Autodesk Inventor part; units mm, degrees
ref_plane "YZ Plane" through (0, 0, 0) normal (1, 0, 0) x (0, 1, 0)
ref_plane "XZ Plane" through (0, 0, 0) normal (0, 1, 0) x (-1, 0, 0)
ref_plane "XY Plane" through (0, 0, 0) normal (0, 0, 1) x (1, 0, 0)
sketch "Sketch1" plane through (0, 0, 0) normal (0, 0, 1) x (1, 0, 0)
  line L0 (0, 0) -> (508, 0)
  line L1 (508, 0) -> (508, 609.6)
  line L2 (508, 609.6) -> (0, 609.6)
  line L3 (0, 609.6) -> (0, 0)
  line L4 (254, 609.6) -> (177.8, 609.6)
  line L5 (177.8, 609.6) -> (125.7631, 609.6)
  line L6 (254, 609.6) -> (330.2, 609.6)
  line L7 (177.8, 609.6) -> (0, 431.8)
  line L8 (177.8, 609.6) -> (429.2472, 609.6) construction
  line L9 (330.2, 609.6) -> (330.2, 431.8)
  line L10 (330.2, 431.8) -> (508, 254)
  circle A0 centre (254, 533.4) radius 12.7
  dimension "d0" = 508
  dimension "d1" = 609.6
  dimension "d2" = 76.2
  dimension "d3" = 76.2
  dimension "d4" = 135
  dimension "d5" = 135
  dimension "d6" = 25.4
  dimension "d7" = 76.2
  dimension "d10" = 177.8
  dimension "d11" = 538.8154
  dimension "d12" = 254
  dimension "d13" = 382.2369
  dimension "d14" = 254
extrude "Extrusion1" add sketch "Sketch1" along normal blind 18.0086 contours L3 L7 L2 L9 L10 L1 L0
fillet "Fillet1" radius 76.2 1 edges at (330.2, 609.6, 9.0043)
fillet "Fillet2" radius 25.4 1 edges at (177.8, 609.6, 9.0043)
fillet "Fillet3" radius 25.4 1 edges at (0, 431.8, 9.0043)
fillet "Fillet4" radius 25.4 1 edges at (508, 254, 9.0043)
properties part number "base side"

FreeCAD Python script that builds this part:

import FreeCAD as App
import Part
import Sketcher
Q = App.Units.Quantity


def edges_at(feature, points):
    """Names of the edges that pass closest to the given points."""
    edges = feature.Shape.Edges
    near = lambda p: min(range(len(edges)), key=lambda i: edges[i].distToShape(Part.Vertex(*p))[0])
    return sorted({f"Edge{near(p) + 1}" for p in points})

doc = App.newDocument("Part")
body = doc.addObject("PartDesign::Body", "Body")

# Sketch on XY plane
sketch1 = body.newObject("Sketcher::SketchObject", "Sketch")
sketch1.AttachmentSupport = (doc.getObject("XY_Plane"), [""])
sketch1.MapMode = "FlatFace"
sketch1.addGeometry([
    Part.LineSegment(App.Vector(0, 431.8, 0), App.Vector(0, 0, 0)),  # 0
    Part.LineSegment(App.Vector(0, 0, 0), App.Vector(508, 0, 0)),  # 1
    Part.LineSegment(App.Vector(508, 0, 0), App.Vector(508, 254, 0)),  # 2
    Part.LineSegment(App.Vector(508, 254, 0), App.Vector(330.2, 431.8, 0)),  # 3
    Part.LineSegment(App.Vector(330.2, 431.8, 0), App.Vector(330.2, 609.6, 0)),  # 4
    Part.LineSegment(App.Vector(330.2, 609.6, 0), App.Vector(177.8, 609.6, 0)),  # 5
    Part.LineSegment(App.Vector(177.8, 609.6, 0), App.Vector(0, 431.8, 0)),  # 6
    Part.Circle(App.Vector(254, 533.4, 0), App.Vector(0, 0, 1), 12.7),  # 7
], False)
sketch1.addConstraint([
    Sketcher.Constraint("Coincident", 0, 2, 1, 1),
    Sketcher.Constraint("Coincident", 1, 2, 2, 1),
    Sketcher.Constraint("Coincident", 2, 2, 3, 1),
    Sketcher.Constraint("Coincident", 3, 2, 4, 1),
    Sketcher.Constraint("Coincident", 4, 2, 5, 1),
    Sketcher.Constraint("Coincident", 5, 2, 6, 1),
    Sketcher.Constraint("Coincident", 6, 2, 0, 1),
    Sketcher.Constraint("Vertical", 0),
    Sketcher.Constraint("Horizontal", 1),
    Sketcher.Constraint("Vertical", 2),
    Sketcher.Constraint("Vertical", 4),
    Sketcher.Constraint("Horizontal", 5),
    Sketcher.Constraint("Coincident", 0, 2, -1, 1),
    Sketcher.Constraint("Perpendicular", 3, 6),
    Sketcher.Constraint("Horizontal", 3, 2, 6, 2),
    Sketcher.Constraint("Equal", 3, 6),
    Sketcher.Constraint("Diameter", 7, Q("1 in")),
    Sketcher.Constraint("DistanceX", 1, 1, 1, 2, Q("20 in")),
    Sketcher.Constraint("DistanceY", 2, 1, 2, 2, Q("10 in")),
    Sketcher.Constraint("DistanceY", 4, 1, 4, 2, Q("7 in")),
    Sketcher.Constraint("DistanceX", -1, 1, 7, 3, Q("10 in")),
    Sketcher.Constraint("DistanceY", -1, 1, 4, 2, Q("24 in")),
    Sketcher.Constraint("DistanceY", 7, 3, 4, 2, Q("3 in")),
])
pad1 = body.newObject("PartDesign::Pad", "Pad")
pad1.Profile = sketch1
pad1.Length = Q("0.709 in")
doc.recompute()

fillet = body.newObject("PartDesign::Fillet", "Fillet")
fillet.Base = (pad1, edges_at(pad1, [(330.2, 609.6, 9.004)]))
fillet.Radius = Q("3 in")
doc.recompute()

fillet2 = body.newObject("PartDesign::Fillet", "Fillet001")
fillet2.Base = (fillet, edges_at(fillet, [(177.8, 609.6, 9.004)]))
fillet2.Radius = Q("1 in")
doc.recompute()

fillet3 = body.newObject("PartDesign::Fillet", "Fillet002")
fillet3.Base = (fillet2, edges_at(fillet2, [(0, 431.8, 9.004)]))
fillet3.Radius = Q("1 in")
doc.recompute()

fillet4 = body.newObject("PartDesign::Fillet", "Fillet003")
fillet4.Base = (fillet3, edges_at(fillet3, [(508, 254, 9.004)]))
fillet4.Radius = Q("1 in")

doc.recompute()
